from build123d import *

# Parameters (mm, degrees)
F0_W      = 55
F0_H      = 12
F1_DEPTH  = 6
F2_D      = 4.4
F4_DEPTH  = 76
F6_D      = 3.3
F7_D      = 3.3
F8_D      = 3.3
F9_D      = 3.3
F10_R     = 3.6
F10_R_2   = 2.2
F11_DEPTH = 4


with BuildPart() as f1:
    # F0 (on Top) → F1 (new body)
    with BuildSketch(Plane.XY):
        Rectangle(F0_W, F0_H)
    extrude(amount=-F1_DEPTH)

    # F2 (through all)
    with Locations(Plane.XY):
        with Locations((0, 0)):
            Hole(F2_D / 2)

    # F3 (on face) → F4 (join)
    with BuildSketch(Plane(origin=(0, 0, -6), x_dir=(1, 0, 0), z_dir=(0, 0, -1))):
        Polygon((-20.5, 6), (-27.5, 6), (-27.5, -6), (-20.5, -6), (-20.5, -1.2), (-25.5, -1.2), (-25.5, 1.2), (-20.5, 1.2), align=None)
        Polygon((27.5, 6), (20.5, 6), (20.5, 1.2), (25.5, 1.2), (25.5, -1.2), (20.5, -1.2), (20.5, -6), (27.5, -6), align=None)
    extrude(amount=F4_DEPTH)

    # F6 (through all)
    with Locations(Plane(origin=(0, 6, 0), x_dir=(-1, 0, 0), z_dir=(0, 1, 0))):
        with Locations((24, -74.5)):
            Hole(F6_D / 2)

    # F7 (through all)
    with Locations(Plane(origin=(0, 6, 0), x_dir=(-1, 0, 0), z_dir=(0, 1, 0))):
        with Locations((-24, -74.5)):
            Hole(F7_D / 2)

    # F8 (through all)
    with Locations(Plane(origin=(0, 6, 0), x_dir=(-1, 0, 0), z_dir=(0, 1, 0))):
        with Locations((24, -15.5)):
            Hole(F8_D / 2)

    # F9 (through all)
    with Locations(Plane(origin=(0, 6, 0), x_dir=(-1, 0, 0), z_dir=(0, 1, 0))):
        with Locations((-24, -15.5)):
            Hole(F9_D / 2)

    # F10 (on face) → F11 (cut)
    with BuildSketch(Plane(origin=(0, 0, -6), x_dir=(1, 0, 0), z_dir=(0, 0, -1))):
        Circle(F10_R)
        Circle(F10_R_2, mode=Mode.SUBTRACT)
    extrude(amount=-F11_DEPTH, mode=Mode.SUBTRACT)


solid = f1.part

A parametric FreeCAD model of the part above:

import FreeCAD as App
import Part
import Sketcher

V = App.Vector
Q = App.Units.Quantity

doc = App.newDocument("Part")
params = doc.addObject("Spreadsheet::Sheet", "Params")
for row, (alias, value) in enumerate([
    ("sketch1_width", "55 mm"),
    ("sketch1_height", "12 mm"),
    ("pad1_length", "6 mm"),
    ("sketch2_diameter", "4.4 mm"),
    ("hole_diameter", "4.4 mm"),
    ("sketch3_width", "7 mm"),
    ("sketch3_width2", "5 mm"),
    ("sketch3_height", "12 mm"),
    ("sketch3_height2", "4.8 mm"),
    ("pad2_length", "76 mm"),
    ("sketch4_diameter", "3.3 mm"),
    ("hole2_diameter", "3.3 mm"),
    ("sketch5_diameter", "3.3 mm"),
    ("hole3_diameter", "3.3 mm"),
    ("sketch6_diameter", "3.3 mm"),
    ("hole4_diameter", "3.3 mm"),
    ("sketch7_diameter", "3.3 mm"),
    ("hole5_diameter", "3.3 mm"),
    ("sketch8_diameter", "7.2 mm"),
    ("sketch8_diameter2", "4.4 mm"),
    ("pocket1_length", "4 mm"),
], start=1):
    params.set(f"A{row}", alias)
    params.set(f"B{row}", "=" + value)
    params.setAlias(f"B{row}", alias)

body = doc.addObject("PartDesign::Body", "Body")

# Sketch on XY plane
sketch1 = body.newObject("Sketcher::SketchObject", "Sketch")
sketch1.AttachmentSupport = (doc.getObject("XY_Plane"), [""])
sketch1.MapMode = "FlatFace"
sketch1.addGeometry(Part.LineSegment(V(-27.5, 6, 0), V(-27.5, -6, 0)), False)
sketch1.addGeometry(Part.LineSegment(V(-27.5, -6, 0), V(27.5, -6, 0)), False)
sketch1.addGeometry(Part.LineSegment(V(27.5, -6, 0), V(27.5, 6, 0)), False)
sketch1.addGeometry(Part.LineSegment(V(27.5, 6, 0), V(-27.5, 6, 0)), False)
sketch1.addConstraint(Sketcher.Constraint("Coincident", 0, 2, 1, 1))
sketch1.addConstraint(Sketcher.Constraint("Coincident", 1, 2, 2, 1))
sketch1.addConstraint(Sketcher.Constraint("Coincident", 2, 2, 3, 1))
sketch1.addConstraint(Sketcher.Constraint("Coincident", 3, 2, 0, 1))
sketch1.addConstraint(Sketcher.Constraint("Vertical", 0))
sketch1.addConstraint(Sketcher.Constraint("Horizontal", 1))
sketch1.addConstraint(Sketcher.Constraint("Vertical", 2))
sketch1.addConstraint(Sketcher.Constraint("Horizontal", 3))
sketch1.addConstraint(Sketcher.Constraint("Symmetric", 0, 2, 2, 2, -1, 1))
sketch1.addConstraint(Sketcher.Constraint("DistanceX", 1, 1, 1, 2, Q("55 mm")))
sketch1.addConstraint(Sketcher.Constraint("DistanceY", 0, 2, 0, 1, Q("12 mm")))
sketch1.setExpression("Constraints[9]", "Params.sketch1_width")
sketch1.setExpression("Constraints[10]", "Params.sketch1_height")
pad1 = body.newObject("PartDesign::Pad", "Pad")
pad1.Profile = sketch1
pad1.setExpression("Length", "Params.pad1_length")
pad1.Reversed = True

# Sketch on XY plane
sketch2 = body.newObject("Sketcher::SketchObject", "Sketch001")
sketch2.AttachmentSupport = (doc.getObject("XY_Plane"), [""])
sketch2.MapMode = "FlatFace"
sketch2.addGeometry(Part.Circle(V(0, 0, 0), V(0, 0, 1), 2.2), False)
sketch2.addConstraint(Sketcher.Constraint("Coincident", 0, 3, -1, 1))
sketch2.addConstraint(Sketcher.Constraint("Diameter", 0, Q("4.4 mm")))
sketch2.setExpression("Constraints[1]", "Params.sketch2_diameter")
doc.recompute()
hole = body.newObject("PartDesign::Hole", "Hole")
hole.Profile = sketch2
hole.ThreadType = "None"
hole.setExpression("Diameter", "Params.hole_diameter")
hole.DepthType = "ThroughAll"

# Sketch on XY plane
sketch3 = body.newObject("Sketcher::SketchObject", "Sketch002")
sketch3.AttachmentSupport = (doc.getObject("XY_Plane"), [""])
sketch3.MapMode = "FlatFace"
sketch3.AttachmentOffset = App.Placement(V(0, 0, -6), App.Rotation())
sketch3.addGeometry(Part.LineSegment(V(-20.5, -6, 0), V(-27.5, -6, 0)), False)
sketch3.addGeometry(Part.LineSegment(V(-27.5, -6, 0), V(-27.5, 6, 0)), False)
sketch3.addGeometry(Part.LineSegment(V(-27.5, 6, 0), V(-20.5, 6, 0)), False)
sketch3.addGeometry(Part.LineSegment(V(-20.5, 6, 0), V(-20.5, 1.2, 0)), False)
sketch3.addGeometry(Part.LineSegment(V(-20.5, 1.2, 0), V(-25.5, 1.2, 0)), False)
sketch3.addGeometry(Part.LineSegment(V(-25.5, 1.2, 0), V(-25.5, -1.2, 0)), False)
sketch3.addGeometry(Part.LineSegment(V(-25.5, -1.2, 0), V(-20.5, -1.2, 0)), False)
sketch3.addGeometry(Part.LineSegment(V(-20.5, -1.2, 0), V(-20.5, -6, 0)), False)
sketch3.addGeometry(Part.LineSegment(V(27.5, -6, 0), V(20.5, -6, 0)), False)
sketch3.addGeometry(Part.LineSegment(V(20.5, -6, 0), V(20.5, -1.2, 0)), False)
sketch3.addGeometry(Part.LineSegment(V(20.5, -1.2, 0), V(25.5, -1.2, 0)), False)
sketch3.addGeometry(Part.LineSegment(V(25.5, -1.2, 0), V(25.5, 1.2, 0)), False)
sketch3.addGeometry(Part.LineSegment(V(25.5, 1.2, 0), V(20.5, 1.2, 0)), False)
sketch3.addGeometry(Part.LineSegment(V(20.5, 1.2, 0), V(20.5, 6, 0)), False)
sketch3.addGeometry(Part.LineSegment(V(20.5, 6, 0), V(27.5, 6, 0)), False)
sketch3.addGeometry(Part.LineSegment(V(27.5, 6, 0), V(27.5, -6, 0)), False)
sketch3.addConstraint(Sketcher.Constraint("Coincident", 0, 2, 1, 1))
sketch3.addConstraint(Sketcher.Constraint("Coincident", 1, 2, 2, 1))
sketch3.addConstraint(Sketcher.Constraint("Coincident", 2, 2, 3, 1))
sketch3.addConstraint(Sketcher.Constraint("Coincident", 3, 2, 4, 1))
sketch3.addConstraint(Sketcher.Constraint("Coincident", 4, 2, 5, 1))
sketch3.addConstraint(Sketcher.Constraint("Coincident", 5, 2, 6, 1))
sketch3.addConstraint(Sketcher.Constraint("Coincident", 6, 2, 7, 1))
sketch3.addConstraint(Sketcher.Constraint("Coincident", 7, 2, 0, 1))
sketch3.addConstraint(Sketcher.Constraint("Coincident", 8, 2, 9, 1))
sketch3.addConstraint(Sketcher.Constraint("Coincident", 9, 2, 10, 1))
sketch3.addConstraint(Sketcher.Constraint("Coincident", 10, 2, 11, 1))
sketch3.addConstraint(Sketcher.Constraint("Coincident", 11, 2, 12, 1))
sketch3.addConstraint(Sketcher.Constraint("Coincident", 12, 2, 13, 1))
sketch3.addConstraint(Sketcher.Constraint("Coincident", 13, 2, 14, 1))
sketch3.addConstraint(Sketcher.Constraint("Coincident", 14, 2, 15, 1))
sketch3.addConstraint(Sketcher.Constraint("Coincident", 15, 2, 8, 1))
sketch3.addConstraint(Sketcher.Constraint("Horizontal", 0))
sketch3.addConstraint(Sketcher.Constraint("Vertical", 1))
sketch3.addConstraint(Sketcher.Constraint("Horizontal", 2))
sketch3.addConstraint(Sketcher.Constraint("Vertical", 3))
sketch3.addConstraint(Sketcher.Constraint("Horizontal", 4))
sketch3.addConstraint(Sketcher.Constraint("Vertical", 5))
sketch3.addConstraint(Sketcher.Constraint("Horizontal", 6))
sketch3.addConstraint(Sketcher.Constraint("Vertical", 7))
sketch3.addConstraint(Sketcher.Constraint("Horizontal", 8))
sketch3.addConstraint(Sketcher.Constraint("Vertical", 9))
sketch3.addConstraint(Sketcher.Constraint("Horizontal", 10))
sketch3.addConstraint(Sketcher.Constraint("Vertical", 11))
sketch3.addConstraint(Sketcher.Constraint("Horizontal", 12))
sketch3.addConstraint(Sketcher.Constraint("Vertical", 13))
sketch3.addConstraint(Sketcher.Constraint("Horizontal", 14))
sketch3.addConstraint(Sketcher.Constraint("Vertical", 15))
sketch3.addConstraint(Sketcher.Constraint("Symmetric", 2, 2, 8, 2, -1, 1))
sketch3.addConstraint(Sketcher.Constraint("Symmetric", 4, 2, 10, 2, -1, 1))
sketch3.addConstraint(Sketcher.Constraint("Symmetric", 6, 2, 12, 2, -1, 1))
sketch3.addConstraint(Sketcher.Constraint("Symmetric", 0, 2, 14, 2, -1, 1))
sketch3.addConstraint(Sketcher.Constraint("Symmetric", 7, 2, 8, 2, -2))
sketch3.addConstraint(Sketcher.Constraint("Horizontal", 6, 2, 9, 2))
sketch3.addConstraint(Sketcher.Constraint("DistanceX", 0, 2, 0, 1, Q("7 mm")))
sketch3.addConstraint(Sketcher.Constraint("DistanceX", 4, 2, 4, 1, Q("5 mm")))
sketch3.addConstraint(Sketcher.Constraint("DistanceY", 1, 1, 1, 2, Q("12 mm")))
sketch3.addConstraint(Sketcher.Constraint("DistanceY", 3, 2, 3, 1, Q("4.8 mm")))
sketch3.addConstraint(Sketcher.Constraint("DistanceX", 7, 2, 8, 2, Q("41 mm")))
sketch3.setExpression("Constraints[38]", "Params.sketch3_width")
sketch3.setExpression("Constraints[39]", "Params.sketch3_width2")
sketch3.setExpression("Constraints[40]", "Params.sketch3_height")
sketch3.setExpression("Constraints[41]", "Params.sketch3_height2")
pad2 = body.newObject("PartDesign::Pad", "Pad001")
pad2.Profile = sketch3
pad2.setExpression("Length", "Params.pad2_length")
pad2.Reversed = True

# Sketch on XZ plane
sketch4 = body.newObject("Sketcher::SketchObject", "Sketch003")
sketch4.AttachmentSupport = (doc.getObject("XZ_Plane"), [""])
sketch4.MapMode = "FlatFace"
sketch4.AttachmentOffset = App.Placement(V(0, 0, -6), App.Rotation())
sketch4.addGeometry(Part.Circle(V(-24, -74.5, 0), V(0, 0, 1), 1.65), False)
sketch4.addConstraint(Sketcher.Constraint("Diameter", 0, Q("3.3 mm")))
sketch4.addConstraint(Sketcher.Constraint("DistanceX", 0, 3, -1, 1, Q("24 mm")))
sketch4.addConstraint(Sketcher.Constraint("DistanceY", 0, 3, -1, 1, Q("74.5 mm")))
sketch4.setExpression("Constraints[0]", "Params.sketch4_diameter")
doc.recompute()
hole2 = body.newObject("PartDesign::Hole", "Hole001")
hole2.Profile = sketch4
hole2.ThreadType = "None"
hole2.setExpression("Diameter", "Params.hole2_diameter")
hole2.DepthType = "ThroughAll"
hole2.Reversed = True

# Sketch on XZ plane
sketch5 = body.newObject("Sketcher::SketchObject", "Sketch004")
sketch5.AttachmentSupport = (doc.getObject("XZ_Plane"), [""])
sketch5.MapMode = "FlatFace"
sketch5.AttachmentOffset = App.Placement(V(0, 0, -6), App.Rotation())
sketch5.addGeometry(Part.Circle(V(24, -74.5, 0), V(0, 0, 1), 1.65), False)
sketch5.addConstraint(Sketcher.Constraint("Diameter", 0, Q("3.3 mm")))
sketch5.addConstraint(Sketcher.Constraint("DistanceX", -1, 1, 0, 3, Q("24 mm")))
sketch5.addConstraint(Sketcher.Constraint("DistanceY", 0, 3, -1, 1, Q("74.5 mm")))
sketch5.setExpression("Constraints[0]", "Params.sketch5_diameter")
doc.recompute()
hole3 = body.newObject("PartDesign::Hole", "Hole002")
hole3.Profile = sketch5
hole3.ThreadType = "None"
hole3.setExpression("Diameter", "Params.hole3_diameter")
hole3.DepthType = "ThroughAll"
hole3.Reversed = True

# Sketch on XZ plane
sketch6 = body.newObject("Sketcher::SketchObject", "Sketch005")
sketch6.AttachmentSupport = (doc.getObject("XZ_Plane"), [""])
sketch6.MapMode = "FlatFace"
sketch6.AttachmentOffset = App.Placement(V(0, 0, -6), App.Rotation())
sketch6.addGeometry(Part.Circle(V(-24, -15.5, 0), V(0, 0, 1), 1.65), False)
sketch6.addConstraint(Sketcher.Constraint("Diameter", 0, Q("3.3 mm")))
sketch6.addConstraint(Sketcher.Constraint("DistanceX", 0, 3, -1, 1, Q("24 mm")))
sketch6.addConstraint(Sketcher.Constraint("DistanceY", 0, 3, -1, 1, Q("15.5 mm")))
sketch6.setExpression("Constraints[0]", "Params.sketch6_diameter")
doc.recompute()
hole4 = body.newObject("PartDesign::Hole", "Hole003")
hole4.Profile = sketch6
hole4.ThreadType = "None"
hole4.setExpression("Diameter", "Params.hole4_diameter")
hole4.DepthType = "ThroughAll"
hole4.Reversed = True

# Sketch on XZ plane
sketch7 = body.newObject("Sketcher::SketchObject", "Sketch006")
sketch7.AttachmentSupport = (doc.getObject("XZ_Plane"), [""])
sketch7.MapMode = "FlatFace"
sketch7.AttachmentOffset = App.Placement(V(0, 0, -6), App.Rotation())
sketch7.addGeometry(Part.Circle(V(24, -15.5, 0), V(0, 0, 1), 1.65), False)
sketch7.addConstraint(Sketcher.Constraint("Diameter", 0, Q("3.3 mm")))
sketch7.addConstraint(Sketcher.Constraint("DistanceX", -1, 1, 0, 3, Q("24 mm")))
sketch7.addConstraint(Sketcher.Constraint("DistanceY", 0, 3, -1, 1, Q("15.5 mm")))
sketch7.setExpression("Constraints[0]", "Params.sketch7_diameter")
doc.recompute()
hole5 = body.newObject("PartDesign::Hole", "Hole004")
hole5.Profile = sketch7
hole5.ThreadType = "None"
hole5.setExpression("Diameter", "Params.hole5_diameter")
hole5.DepthType = "ThroughAll"
hole5.Reversed = True

# Sketch on XY plane
sketch8 = body.newObject("Sketcher::SketchObject", "Sketch007")
sketch8.AttachmentSupport = (doc.getObject("XY_Plane"), [""])
sketch8.MapMode = "FlatFace"
sketch8.AttachmentOffset = App.Placement(V(0, 0, -6), App.Rotation())
sketch8.addGeometry(Part.Circle(V(0, 0, 0), V(0, 0, 1), 3.6), False)
sketch8.addGeometry(Part.Circle(V(0, 0, 0), V(0, 0, 1), 2.2), False)
sketch8.addConstraint(Sketcher.Constraint("Coincident", 0, 3, -1, 1))
sketch8.addConstraint(Sketcher.Constraint("Coincident", 1, 3, -1, 1))
sketch8.addConstraint(Sketcher.Constraint("Diameter", 0, Q("7.2 mm")))
sketch8.addConstraint(Sketcher.Constraint("Diameter", 1, Q("4.4 mm")))
sketch8.setExpression("Constraints[2]", "Params.sketch8_diameter")
sketch8.setExpression("Constraints[3]", "Params.sketch8_diameter2")
pocket1 = body.newObject("PartDesign::Pocket", "Pocket")
pocket1.Profile = sketch8
pocket1.setExpression("Length", "Params.pocket1_length")
pocket1.Reversed = True

doc.recompute()
